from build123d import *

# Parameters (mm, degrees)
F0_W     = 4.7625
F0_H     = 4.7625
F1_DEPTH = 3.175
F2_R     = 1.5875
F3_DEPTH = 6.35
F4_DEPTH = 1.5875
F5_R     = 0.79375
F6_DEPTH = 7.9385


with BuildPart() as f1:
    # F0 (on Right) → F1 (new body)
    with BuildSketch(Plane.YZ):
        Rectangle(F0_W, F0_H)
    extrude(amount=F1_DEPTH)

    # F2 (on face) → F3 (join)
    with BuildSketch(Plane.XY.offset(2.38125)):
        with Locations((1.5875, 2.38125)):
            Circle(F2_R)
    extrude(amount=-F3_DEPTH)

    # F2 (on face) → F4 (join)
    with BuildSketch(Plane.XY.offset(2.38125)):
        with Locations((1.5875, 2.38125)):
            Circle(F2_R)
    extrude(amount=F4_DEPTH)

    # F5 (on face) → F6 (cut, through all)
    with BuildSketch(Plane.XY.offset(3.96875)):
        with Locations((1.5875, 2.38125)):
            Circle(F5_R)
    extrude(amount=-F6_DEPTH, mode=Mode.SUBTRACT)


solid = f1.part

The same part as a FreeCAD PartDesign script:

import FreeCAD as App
import Part
import Sketcher

V = App.Vector
Q = App.Units.Quantity


def add_polygon(sketch, points):
    """Adds a closed chain of lines whose ends are joined by coincident constraints."""
    first, n = sketch.GeometryCount, len(points)
    for a, b in zip(points, points[1:] + points[:1]):
        sketch.addGeometry(Part.LineSegment(App.Vector(*a, 0), App.Vector(*b, 0)), False)
    for i in range(n):
        sketch.addConstraint(Sketcher.Constraint("Coincident", first + i, 2, first + (i + 1) % n, 1))

doc = App.newDocument("Part")
body = doc.addObject("PartDesign::Body", "Body")

sketch1 = doc.addObject("Sketcher::SketchObject", "Sketch")
body.addObject(sketch1)
sketch1.AttachmentSupport = (doc.YZ_Plane, [""])
sketch1.MapMode = "FlatFace"
add_polygon(sketch1, [(-2.38125, 2.38125), (-2.38125, -2.38125), (2.38125, -2.38125), (2.38125, 2.38125)])
sketch1.addConstraint([
    Sketcher.Constraint("Vertical", 0),
    Sketcher.Constraint("Horizontal", 1),
    Sketcher.Constraint("Vertical", 2),
    Sketcher.Constraint("Horizontal", 3),
    Sketcher.Constraint("Symmetric", 0, 2, 2, 2, -1, 1),
    Sketcher.Constraint("Equal", 3, 0),
    Sketcher.Constraint("DistanceX", 1, 1, 1, 2, Q("0.1875 in")),
])
pad1 = doc.addObject("PartDesign::Pad", "Pad")
body.addObject(pad1)
pad1.Profile = sketch1
pad1.Length = Q("0.125 in")

sketch2 = doc.addObject("Sketcher::SketchObject", "Sketch001")
body.addObject(sketch2)
sketch2.AttachmentSupport = (doc.XY_Plane, [""])
sketch2.MapMode = "FlatFace"
sketch2.AttachmentOffset = App.Placement(V(0, 0, 0.09375 * 25.4), App.Rotation())
sketch2.addGeometry(Part.Circle(V(1.5875, 2.38125, 0), V(0, 0, 1), 1.5875), False)
sketch2.addConstraint([
    Sketcher.Constraint("Diameter", 0, Q("0.125 in")),
    Sketcher.Constraint("DistanceX", -1, 1, 0, 3, Q("0.0625 in")),
    Sketcher.Constraint("DistanceY", -1, 1, 0, 3, Q("0.09375 in")),
])
pad2 = doc.addObject("PartDesign::Pad", "Pad001")
body.addObject(pad2)
pad2.Profile = sketch2
pad2.Length = Q("0.25 in")
pad2.Reversed = True

sketch3 = doc.addObject("Sketcher::SketchObject", "Sketch002")
body.addObject(sketch3)
sketch3.AttachmentSupport = (doc.XY_Plane, [""])
sketch3.MapMode = "FlatFace"
sketch3.AttachmentOffset = App.Placement(V(0, 0, 0.09375 * 25.4), App.Rotation())
sketch3.addGeometry(Part.Circle(V(1.5875, 2.38125, 0), V(0, 0, 1), 1.5875), False)
sketch3.addConstraint([
    Sketcher.Constraint("Diameter", 0, Q("0.125 in")),
    Sketcher.Constraint("DistanceX", -1, 1, 0, 3, Q("0.0625 in")),
    Sketcher.Constraint("DistanceY", -1, 1, 0, 3, Q("0.09375 in")),
])
pad3 = doc.addObject("PartDesign::Pad", "Pad002")
body.addObject(pad3)
pad3.Profile = sketch3
pad3.Length = Q("0.0625 in")

sketch4 = doc.addObject("Sketcher::SketchObject", "Sketch003")
body.addObject(sketch4)
sketch4.AttachmentSupport = (doc.XY_Plane, [""])
sketch4.MapMode = "FlatFace"
sketch4.AttachmentOffset = App.Placement(V(0, 0, 0.15625 * 25.4), App.Rotation())
sketch4.addGeometry(Part.Circle(V(1.5875, 2.38125, 0), V(0, 0, 1), 0.79375), False)
sketch4.addConstraint([
    Sketcher.Constraint("Diameter", 0, Q("0.0625 in")),
    Sketcher.Constraint("DistanceX", -1, 1, 0, 3, Q("0.0625 in")),
    Sketcher.Constraint("DistanceY", -1, 1, 0, 3, Q("0.09375 in")),
])
pocket1 = doc.addObject("PartDesign::Pocket", "Pocket")
body.addObject(pocket1)
pocket1.Profile = sketch4
pocket1.Type = "ThroughAll"

doc.recompute()
